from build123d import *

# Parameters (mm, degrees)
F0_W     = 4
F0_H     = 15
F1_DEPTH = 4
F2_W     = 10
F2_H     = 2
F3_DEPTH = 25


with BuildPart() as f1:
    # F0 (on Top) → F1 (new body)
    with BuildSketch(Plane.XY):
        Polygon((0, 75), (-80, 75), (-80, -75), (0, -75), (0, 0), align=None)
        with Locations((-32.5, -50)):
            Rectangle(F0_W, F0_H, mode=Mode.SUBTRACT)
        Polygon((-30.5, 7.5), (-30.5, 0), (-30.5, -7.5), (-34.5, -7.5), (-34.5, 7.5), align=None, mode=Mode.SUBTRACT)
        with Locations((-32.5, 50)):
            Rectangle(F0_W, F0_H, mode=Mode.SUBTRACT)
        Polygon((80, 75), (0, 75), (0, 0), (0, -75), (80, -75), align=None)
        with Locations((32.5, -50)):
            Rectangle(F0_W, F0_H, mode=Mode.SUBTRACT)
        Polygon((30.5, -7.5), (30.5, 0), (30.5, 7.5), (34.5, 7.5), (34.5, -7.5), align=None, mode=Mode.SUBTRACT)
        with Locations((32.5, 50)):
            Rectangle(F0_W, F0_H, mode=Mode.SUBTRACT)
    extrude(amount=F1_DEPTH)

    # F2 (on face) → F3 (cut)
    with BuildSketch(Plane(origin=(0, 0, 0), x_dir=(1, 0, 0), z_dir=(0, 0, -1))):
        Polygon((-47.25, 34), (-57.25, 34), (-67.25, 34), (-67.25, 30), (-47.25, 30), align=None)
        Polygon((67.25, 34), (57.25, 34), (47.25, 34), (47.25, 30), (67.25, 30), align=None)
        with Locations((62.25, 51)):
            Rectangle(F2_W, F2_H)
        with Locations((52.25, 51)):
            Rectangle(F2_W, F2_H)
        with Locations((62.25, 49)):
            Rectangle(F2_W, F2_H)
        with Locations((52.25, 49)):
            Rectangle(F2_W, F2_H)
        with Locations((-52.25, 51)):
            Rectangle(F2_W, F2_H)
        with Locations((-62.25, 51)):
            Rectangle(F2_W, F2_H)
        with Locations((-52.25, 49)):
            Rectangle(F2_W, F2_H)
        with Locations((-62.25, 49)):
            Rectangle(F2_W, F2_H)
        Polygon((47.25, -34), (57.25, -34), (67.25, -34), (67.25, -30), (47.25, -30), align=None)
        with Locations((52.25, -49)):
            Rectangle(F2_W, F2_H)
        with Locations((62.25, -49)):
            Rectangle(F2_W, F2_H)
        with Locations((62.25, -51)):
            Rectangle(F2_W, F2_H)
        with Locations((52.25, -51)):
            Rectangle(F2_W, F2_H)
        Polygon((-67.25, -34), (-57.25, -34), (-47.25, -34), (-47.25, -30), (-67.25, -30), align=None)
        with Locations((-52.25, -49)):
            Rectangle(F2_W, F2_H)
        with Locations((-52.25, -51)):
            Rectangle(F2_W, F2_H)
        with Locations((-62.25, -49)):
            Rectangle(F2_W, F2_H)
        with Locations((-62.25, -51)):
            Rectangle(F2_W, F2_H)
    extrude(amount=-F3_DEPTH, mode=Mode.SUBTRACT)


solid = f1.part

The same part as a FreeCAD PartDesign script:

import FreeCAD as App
import Part
import Sketcher

V = App.Vector

doc = App.newDocument("Part")
params = doc.addObject("Spreadsheet::Sheet", "Params")
for row, (alias, value) in enumerate([
    ("sketch1_width", "160 mm"),
    ("sketch1_width2", "4 mm"),
    ("sketch1_height", "150 mm"),
    ("sketch1_height2", "15 mm"),
    ("pad1_length", "4 mm"),
    ("sketch2_width", "20 mm"),
    ("sketch2_height", "4 mm"),
    ("pocket1_length", "25 mm"),
], start=1):
    params.set(f"A{row}", alias)
    params.set(f"B{row}", "=" + value)
    params.setAlias(f"B{row}", alias)

body = doc.addObject("PartDesign::Body", "Body")

# Sketch on XY plane
sketch1 = body.newObject("Sketcher::SketchObject", "Sketch")
sketch1.AttachmentSupport = (doc.getObject("XY_Plane"), [""])
sketch1.MapMode = "FlatFace"
sketch1.addGeometry([
    Part.LineSegment(V(-80, 75, 0), V(-80, -75, 0)),  # 0
    Part.LineSegment(V(-80, -75, 0), V(80, -75, 0)),  # 1
    Part.LineSegment(V(80, -75, 0), V(80, 75, 0)),  # 2
    Part.LineSegment(V(80, 75, 0), V(-80, 75, 0)),  # 3
    Part.LineSegment(V(-30.5, -57.5, 0), V(-34.5, -57.5, 0)),  # 4
    Part.LineSegment(V(-34.5, -57.5, 0), V(-34.5, -42.5, 0)),  # 5
    Part.LineSegment(V(-34.5, -42.5, 0), V(-30.5, -42.5, 0)),  # 6
    Part.LineSegment(V(-30.5, -42.5, 0), V(-30.5, -57.5, 0)),  # 7
    Part.LineSegment(V(34.5, -57.5, 0), V(30.5, -57.5, 0)),  # 8
    Part.LineSegment(V(30.5, -57.5, 0), V(30.5, -42.5, 0)),  # 9
    Part.LineSegment(V(30.5, -42.5, 0), V(34.5, -42.5, 0)),  # 10
    Part.LineSegment(V(34.5, -42.5, 0), V(34.5, -57.5, 0)),  # 11
    Part.LineSegment(V(-34.5, 7.5, 0), V(-30.5, 7.5, 0)),  # 12
    Part.LineSegment(V(-30.5, 7.5, 0), V(-30.5, -7.5, 0)),  # 13
    Part.LineSegment(V(-30.5, -7.5, 0), V(-34.5, -7.5, 0)),  # 14
    Part.LineSegment(V(-34.5, -7.5, 0), V(-34.5, 7.5, 0)),  # 15
    Part.LineSegment(V(-30.5, 42.5, 0), V(-34.5, 42.5, 0)),  # 16
    Part.LineSegment(V(-34.5, 42.5, 0), V(-34.5, 57.5, 0)),  # 17
    Part.LineSegment(V(-34.5, 57.5, 0), V(-30.5, 57.5, 0)),  # 18
    Part.LineSegment(V(-30.5, 57.5, 0), V(-30.5, 42.5, 0)),  # 19
    Part.LineSegment(V(34.5, -7.5, 0), V(30.5, -7.5, 0)),  # 20
    Part.LineSegment(V(30.5, -7.5, 0), V(30.5, 7.5, 0)),  # 21
    Part.LineSegment(V(30.5, 7.5, 0), V(34.5, 7.5, 0)),  # 22
    Part.LineSegment(V(34.5, 7.5, 0), V(34.5, -7.5, 0)),  # 23
    Part.LineSegment(V(34.5, 42.5, 0), V(30.5, 42.5, 0)),  # 24
    Part.LineSegment(V(30.5, 42.5, 0), V(30.5, 57.5, 0)),  # 25
    Part.LineSegment(V(30.5, 57.5, 0), V(34.5, 57.5, 0)),  # 26
    Part.LineSegment(V(34.5, 57.5, 0), V(34.5, 42.5, 0)),  # 27
], False)
sketch1.addConstraint([
    Sketcher.Constraint("Coincident", 0, 2, 1, 1),
    Sketcher.Constraint("Coincident", 1, 2, 2, 1),
    Sketcher.Constraint("Coincident", 2, 2, 3, 1),
    Sketcher.Constraint("Coincident", 3, 2, 0, 1),
    Sketcher.Constraint("Coincident", 4, 2, 5, 1),
    Sketcher.Constraint("Coincident", 5, 2, 6, 1),
    Sketcher.Constraint("Coincident", 6, 2, 7, 1),
    Sketcher.Constraint("Coincident", 7, 2, 4, 1),
    Sketcher.Constraint("Coincident", 8, 2, 9, 1),
    Sketcher.Constraint("Coincident", 9, 2, 10, 1),
    Sketcher.Constraint("Coincident", 10, 2, 11, 1),
    Sketcher.Constraint("Coincident", 11, 2, 8, 1),
    Sketcher.Constraint("Coincident", 12, 2, 13, 1),
    Sketcher.Constraint("Coincident", 13, 2, 14, 1),
    Sketcher.Constraint("Coincident", 14, 2, 15, 1),
    Sketcher.Constraint("Coincident", 15, 2, 12, 1),
    Sketcher.Constraint("Coincident", 16, 2, 17, 1),
    Sketcher.Constraint("Coincident", 17, 2, 18, 1),
    Sketcher.Constraint("Coincident", 18, 2, 19, 1),
    Sketcher.Constraint("Coincident", 19, 2, 16, 1),
    Sketcher.Constraint("Coincident", 20, 2, 21, 1),
    Sketcher.Constraint("Coincident", 21, 2, 22, 1),
    Sketcher.Constraint("Coincident", 22, 2, 23, 1),
    Sketcher.Constraint("Coincident", 23, 2, 20, 1),
    Sketcher.Constraint("Coincident", 24, 2, 25, 1),
    Sketcher.Constraint("Coincident", 25, 2, 26, 1),
    Sketcher.Constraint("Coincident", 26, 2, 27, 1),
    Sketcher.Constraint("Coincident", 27, 2, 24, 1),
    Sketcher.Constraint("Vertical", 0),
    Sketcher.Constraint("Horizontal", 1),
    Sketcher.Constraint("Vertical", 2),
    Sketcher.Constraint("Horizontal", 3),
    Sketcher.Constraint("Horizontal", 4),
    Sketcher.Constraint("Vertical", 5),
    Sketcher.Constraint("Horizontal", 6),
    Sketcher.Constraint("Vertical", 7),
    Sketcher.Constraint("Horizontal", 8),
    Sketcher.Constraint("Vertical", 9),
    Sketcher.Constraint("Horizontal", 10),
    Sketcher.Constraint("Vertical", 11),
    Sketcher.Constraint("Horizontal", 12),
    Sketcher.Constraint("Vertical", 13),
    Sketcher.Constraint("Horizontal", 14),
    Sketcher.Constraint("Vertical", 15),
    Sketcher.Constraint("Horizontal", 16),
    Sketcher.Constraint("Vertical", 17),
    Sketcher.Constraint("Horizontal", 18),
    Sketcher.Constraint("Vertical", 19),
    Sketcher.Constraint("Horizontal", 20),
    Sketcher.Constraint("Vertical", 21),
    Sketcher.Constraint("Horizontal", 22),
    Sketcher.Constraint("Vertical", 23),
    Sketcher.Constraint("Horizontal", 24),
    Sketcher.Constraint("Vertical", 25),
    Sketcher.Constraint("Horizontal", 26),
    Sketcher.Constraint("Vertical", 27),
    Sketcher.Constraint("Symmetric", 0, 2, 2, 2, -1, 1),
    Sketcher.Constraint("Symmetric", 10, 2, 16, 2, -1, 1),
    Sketcher.Constraint("Symmetric", 8, 2, 18, 2, -1, 1),
    Sketcher.Constraint("Symmetric", 12, 2, 20, 2, -1, 1),
    Sketcher.Constraint("Symmetric", 14, 2, 22, 2, -1, 1),
    Sketcher.Constraint("Symmetric", 6, 2, 24, 2, -1, 1),
    Sketcher.Constraint("Symmetric", 4, 2, 26, 2, -1, 1),
    Sketcher.Constraint("Symmetric", 7, 2, 8, 2, -2),
    Sketcher.Constraint("Symmetric", 5, 2, 10, 2, -2),
    Sketcher.Constraint("Horizontal", 14, 2, 20, 2),
    Sketcher.Constraint("Vertical", 7, 2, 12, 2),
    Sketcher.Constraint("Vertical", 5, 2, 14, 2),
    Sketcher.Constraint("Equal", 11, 13),
    Sketcher.Constraint("DistanceX", 1, 1, 1, 2, 160.0),
    Sketcher.Constraint("DistanceX", 4, 2, 4, 1, 4.0),
    Sketcher.Constraint("DistanceY", 0, 2, 0, 1, 150.0),
    Sketcher.Constraint("DistanceY", 5, 1, 5, 2, 15.0),
    Sketcher.Constraint("DistanceX", 7, 2, 8, 2, 61.0),
    Sketcher.Constraint("DistanceY", 6, 2, 12, 2, 50.0),
])
sketch1.setExpression("Constraints[69]", "Params.sketch1_width")
sketch1.setExpression("Constraints[70]", "Params.sketch1_width2")
sketch1.setExpression("Constraints[71]", "Params.sketch1_height")
sketch1.setExpression("Constraints[72]", "Params.sketch1_height2")
pad1 = body.newObject("PartDesign::Pad", "Pad")
pad1.Profile = sketch1
pad1.setExpression("Length", "Params.pad1_length")

# Sketch on XY plane
sketch2 = body.newObject("Sketcher::SketchObject", "Sketch001")
sketch2.AttachmentSupport = (doc.getObject("XY_Plane"), [""])
sketch2.MapMode = "FlatFace"
sketch2.addGeometry([
    Part.LineSegment(V(-47.2, -34, 0), V(-67.2, -34, 0)),  # 0
    Part.LineSegment(V(-67.2, -34, 0), V(-67.2, -30, 0)),  # 1
    Part.LineSegment(V(-67.2, -30, 0), V(-47.2, -30, 0)),  # 2
    Part.LineSegment(V(-47.2, -30, 0), V(-47.2, -34, 0)),  # 3
    Part.LineSegment(V(67.2, -34, 0), V(47.2, -34, 0)),  # 4
    Part.LineSegment(V(47.2, -34, 0), V(47.2, -30, 0)),  # 5
    Part.LineSegment(V(47.2, -30, 0), V(67.2, -30, 0)),  # 6
    Part.LineSegment(V(67.2, -30, 0), V(67.2, -34, 0)),  # 7
    Part.LineSegment(V(67.2, -52, 0), V(47.2, -52, 0)),  # 8
    Part.LineSegment(V(47.2, -52, 0), V(47.2, -48, 0)),  # 9
    Part.LineSegment(V(47.2, -48, 0), V(67.2, -48, 0)),  # 10
    Part.LineSegment(V(67.2, -48, 0), V(67.2, -52, 0)),  # 11
    Part.LineSegment(V(-47.2, -52, 0), V(-67.2, -52, 0)),  # 12
    Part.LineSegment(V(-67.2, -52, 0), V(-67.2, -48, 0)),  # 13
    Part.LineSegment(V(-67.2, -48, 0), V(-47.2, -48, 0)),  # 14
    Part.LineSegment(V(-47.2, -48, 0), V(-47.2, -52, 0)),  # 15
    Part.LineSegment(V(47.2, 34, 0), V(67.2, 34, 0)),  # 16
    Part.LineSegment(V(67.2, 34, 0), V(67.2, 30, 0)),  # 17
    Part.LineSegment(V(67.2, 30, 0), V(47.2, 30, 0)),  # 18
    Part.LineSegment(V(47.2, 30, 0), V(47.2, 34, 0)),  # 19
    Part.LineSegment(V(47.2, 48, 0), V(47.2, 52, 0)),  # 20
    Part.LineSegment(V(47.2, 52, 0), V(67.2, 52, 0)),  # 21
    Part.LineSegment(V(67.2, 52, 0), V(67.2, 48, 0)),  # 22
    Part.LineSegment(V(67.2, 48, 0), V(47.2, 48, 0)),  # 23
    Part.LineSegment(V(-67.2, 34, 0), V(-47.2, 34, 0)),  # 24
    Part.LineSegment(V(-47.2, 34, 0), V(-47.2, 30, 0)),  # 25
    Part.LineSegment(V(-47.2, 30, 0), V(-67.2, 30, 0)),  # 26
    Part.LineSegment(V(-67.2, 30, 0), V(-67.2, 34, 0)),  # 27
    Part.LineSegment(V(-47.2, 52, 0), V(-47.2, 48, 0)),  # 28
    Part.LineSegment(V(-47.2, 48, 0), V(-67.2, 48, 0)),  # 29
    Part.LineSegment(V(-67.2, 48, 0), V(-67.2, 52, 0)),  # 30
    Part.LineSegment(V(-67.2, 52, 0), V(-47.2, 52, 0)),  # 31
], False)
sketch2.addConstraint([
    Sketcher.Constraint("Coincident", 0, 2, 1, 1),
    Sketcher.Constraint("Coincident", 1, 2, 2, 1),
    Sketcher.Constraint("Coincident", 2, 2, 3, 1),
    Sketcher.Constraint("Coincident", 3, 2, 0, 1),
    Sketcher.Constraint("Coincident", 4, 2, 5, 1),
    Sketcher.Constraint("Coincident", 5, 2, 6, 1),
    Sketcher.Constraint("Coincident", 6, 2, 7, 1),
    Sketcher.Constraint("Coincident", 7, 2, 4, 1),
    Sketcher.Constraint("Coincident", 8, 2, 9, 1),
    Sketcher.Constraint("Coincident", 9, 2, 10, 1),
    Sketcher.Constraint("Coincident", 10, 2, 11, 1),
    Sketcher.Constraint("Coincident", 11, 2, 8, 1),
    Sketcher.Constraint("Coincident", 12, 2, 13, 1),
    Sketcher.Constraint("Coincident", 13, 2, 14, 1),
    Sketcher.Constraint("Coincident", 14, 2, 15, 1),
    Sketcher.Constraint("Coincident", 15, 2, 12, 1),
    Sketcher.Constraint("Coincident", 16, 2, 17, 1),
    Sketcher.Constraint("Coincident", 17, 2, 18, 1),
    Sketcher.Constraint("Coincident", 18, 2, 19, 1),
    Sketcher.Constraint("Coincident", 19, 2, 16, 1),
    Sketcher.Constraint("Coincident", 20, 2, 21, 1),
    Sketcher.Constraint("Coincident", 21, 2, 22, 1),
    Sketcher.Constraint("Coincident", 22, 2, 23, 1),
    Sketcher.Constraint("Coincident", 23, 2, 20, 1),
    Sketcher.Constraint("Coincident", 24, 2, 25, 1),
    Sketcher.Constraint("Coincident", 25, 2, 26, 1),
    Sketcher.Constraint("Coincident", 26, 2, 27, 1),
    Sketcher.Constraint("Coincident", 27, 2, 24, 1),
    Sketcher.Constraint("Coincident", 28, 2, 29, 1),
    Sketcher.Constraint("Coincident", 29, 2, 30, 1),
    Sketcher.Constraint("Coincident", 30, 2, 31, 1),
    Sketcher.Constraint("Coincident", 31, 2, 28, 1),
    Sketcher.Constraint("Horizontal", 0),
    Sketcher.Constraint("Vertical", 1),
    Sketcher.Constraint("Horizontal", 2),
    Sketcher.Constraint("Vertical", 3),
    Sketcher.Constraint("Horizontal", 4),
    Sketcher.Constraint("Vertical", 5),
    Sketcher.Constraint("Horizontal", 6),
    Sketcher.Constraint("Vertical", 7),
    Sketcher.Constraint("Horizontal", 8),
    Sketcher.Constraint("Vertical", 9),
    Sketcher.Constraint("Horizontal", 10),
    Sketcher.Constraint("Vertical", 11),
    Sketcher.Constraint("Horizontal", 12),
    Sketcher.Constraint("Vertical", 13),
    Sketcher.Constraint("Horizontal", 14),
    Sketcher.Constraint("Vertical", 15),
    Sketcher.Constraint("Horizontal", 16),
    Sketcher.Constraint("Vertical", 17),
    Sketcher.Constraint("Horizontal", 18),
    Sketcher.Constraint("Vertical", 19),
    Sketcher.Constraint("Vertical", 20),
    Sketcher.Constraint("Horizontal", 21),
    Sketcher.Constraint("Vertical", 22),
    Sketcher.Constraint("Horizontal", 23),
    Sketcher.Constraint("Horizontal", 24),
    Sketcher.Constraint("Vertical", 25),
    Sketcher.Constraint("Horizontal", 26),
    Sketcher.Constraint("Vertical", 27),
    Sketcher.Constraint("Vertical", 28),
    Sketcher.Constraint("Horizontal", 29),
    Sketcher.Constraint("Vertical", 30),
    Sketcher.Constraint("Horizontal", 31),
    Sketcher.Constraint("Symmetric", 0, 2, 16, 2, -1, 1),
    Sketcher.Constraint("Symmetric", 2, 2, 18, 2, -1, 1),
    Sketcher.Constraint("Symmetric", 15, 2, 20, 2, -1, 1),
    Sketcher.Constraint("Symmetric", 13, 2, 22, 2, -1, 1),
    Sketcher.Constraint("Symmetric", 4, 2, 24, 2, -1, 1),
    Sketcher.Constraint("Symmetric", 6, 2, 26, 2, -1, 1),
    Sketcher.Constraint("Symmetric", 9, 2, 28, 2, -1, 1),
    Sketcher.Constraint("Symmetric", 11, 2, 30, 2, -1, 1),
    Sketcher.Constraint("Symmetric", 3, 2, 4, 2, -2),
    Sketcher.Constraint("Symmetric", 1, 2, 6, 2, -2),
    Sketcher.Constraint("Symmetric", 11, 2, 12, 2, -2),
    Sketcher.Constraint("Symmetric", 9, 2, 14, 2, -2),
    Sketcher.Constraint("Vertical", 5, 2, 8, 2),
    Sketcher.Constraint("Vertical", 7, 2, 10, 2),
    Sketcher.Constraint("Equal", 7, 9),
    Sketcher.Constraint("DistanceX", 0, 2, 0, 1, 20.0),
    Sketcher.Constraint("DistanceY", 1, 1, 1, 2, 4.0),
    Sketcher.Constraint("DistanceY", 0, 2, -1, 1, 34.0),
    Sketcher.Constraint("DistanceY", 8, 2, -1, 1, 52.0),
    Sketcher.Constraint("DistanceX", 3, 2, 4, 2, 94.5),
])
sketch2.setExpression("Constraints[79]", "Params.sketch2_width")
sketch2.setExpression("Constraints[80]", "Params.sketch2_height")
pocket1 = body.newObject("PartDesign::Pocket", "Pocket")
pocket1.Profile = sketch2
pocket1.setExpression("Length", "Params.pocket1_length")
pocket1.Reversed = True

doc.recompute()
